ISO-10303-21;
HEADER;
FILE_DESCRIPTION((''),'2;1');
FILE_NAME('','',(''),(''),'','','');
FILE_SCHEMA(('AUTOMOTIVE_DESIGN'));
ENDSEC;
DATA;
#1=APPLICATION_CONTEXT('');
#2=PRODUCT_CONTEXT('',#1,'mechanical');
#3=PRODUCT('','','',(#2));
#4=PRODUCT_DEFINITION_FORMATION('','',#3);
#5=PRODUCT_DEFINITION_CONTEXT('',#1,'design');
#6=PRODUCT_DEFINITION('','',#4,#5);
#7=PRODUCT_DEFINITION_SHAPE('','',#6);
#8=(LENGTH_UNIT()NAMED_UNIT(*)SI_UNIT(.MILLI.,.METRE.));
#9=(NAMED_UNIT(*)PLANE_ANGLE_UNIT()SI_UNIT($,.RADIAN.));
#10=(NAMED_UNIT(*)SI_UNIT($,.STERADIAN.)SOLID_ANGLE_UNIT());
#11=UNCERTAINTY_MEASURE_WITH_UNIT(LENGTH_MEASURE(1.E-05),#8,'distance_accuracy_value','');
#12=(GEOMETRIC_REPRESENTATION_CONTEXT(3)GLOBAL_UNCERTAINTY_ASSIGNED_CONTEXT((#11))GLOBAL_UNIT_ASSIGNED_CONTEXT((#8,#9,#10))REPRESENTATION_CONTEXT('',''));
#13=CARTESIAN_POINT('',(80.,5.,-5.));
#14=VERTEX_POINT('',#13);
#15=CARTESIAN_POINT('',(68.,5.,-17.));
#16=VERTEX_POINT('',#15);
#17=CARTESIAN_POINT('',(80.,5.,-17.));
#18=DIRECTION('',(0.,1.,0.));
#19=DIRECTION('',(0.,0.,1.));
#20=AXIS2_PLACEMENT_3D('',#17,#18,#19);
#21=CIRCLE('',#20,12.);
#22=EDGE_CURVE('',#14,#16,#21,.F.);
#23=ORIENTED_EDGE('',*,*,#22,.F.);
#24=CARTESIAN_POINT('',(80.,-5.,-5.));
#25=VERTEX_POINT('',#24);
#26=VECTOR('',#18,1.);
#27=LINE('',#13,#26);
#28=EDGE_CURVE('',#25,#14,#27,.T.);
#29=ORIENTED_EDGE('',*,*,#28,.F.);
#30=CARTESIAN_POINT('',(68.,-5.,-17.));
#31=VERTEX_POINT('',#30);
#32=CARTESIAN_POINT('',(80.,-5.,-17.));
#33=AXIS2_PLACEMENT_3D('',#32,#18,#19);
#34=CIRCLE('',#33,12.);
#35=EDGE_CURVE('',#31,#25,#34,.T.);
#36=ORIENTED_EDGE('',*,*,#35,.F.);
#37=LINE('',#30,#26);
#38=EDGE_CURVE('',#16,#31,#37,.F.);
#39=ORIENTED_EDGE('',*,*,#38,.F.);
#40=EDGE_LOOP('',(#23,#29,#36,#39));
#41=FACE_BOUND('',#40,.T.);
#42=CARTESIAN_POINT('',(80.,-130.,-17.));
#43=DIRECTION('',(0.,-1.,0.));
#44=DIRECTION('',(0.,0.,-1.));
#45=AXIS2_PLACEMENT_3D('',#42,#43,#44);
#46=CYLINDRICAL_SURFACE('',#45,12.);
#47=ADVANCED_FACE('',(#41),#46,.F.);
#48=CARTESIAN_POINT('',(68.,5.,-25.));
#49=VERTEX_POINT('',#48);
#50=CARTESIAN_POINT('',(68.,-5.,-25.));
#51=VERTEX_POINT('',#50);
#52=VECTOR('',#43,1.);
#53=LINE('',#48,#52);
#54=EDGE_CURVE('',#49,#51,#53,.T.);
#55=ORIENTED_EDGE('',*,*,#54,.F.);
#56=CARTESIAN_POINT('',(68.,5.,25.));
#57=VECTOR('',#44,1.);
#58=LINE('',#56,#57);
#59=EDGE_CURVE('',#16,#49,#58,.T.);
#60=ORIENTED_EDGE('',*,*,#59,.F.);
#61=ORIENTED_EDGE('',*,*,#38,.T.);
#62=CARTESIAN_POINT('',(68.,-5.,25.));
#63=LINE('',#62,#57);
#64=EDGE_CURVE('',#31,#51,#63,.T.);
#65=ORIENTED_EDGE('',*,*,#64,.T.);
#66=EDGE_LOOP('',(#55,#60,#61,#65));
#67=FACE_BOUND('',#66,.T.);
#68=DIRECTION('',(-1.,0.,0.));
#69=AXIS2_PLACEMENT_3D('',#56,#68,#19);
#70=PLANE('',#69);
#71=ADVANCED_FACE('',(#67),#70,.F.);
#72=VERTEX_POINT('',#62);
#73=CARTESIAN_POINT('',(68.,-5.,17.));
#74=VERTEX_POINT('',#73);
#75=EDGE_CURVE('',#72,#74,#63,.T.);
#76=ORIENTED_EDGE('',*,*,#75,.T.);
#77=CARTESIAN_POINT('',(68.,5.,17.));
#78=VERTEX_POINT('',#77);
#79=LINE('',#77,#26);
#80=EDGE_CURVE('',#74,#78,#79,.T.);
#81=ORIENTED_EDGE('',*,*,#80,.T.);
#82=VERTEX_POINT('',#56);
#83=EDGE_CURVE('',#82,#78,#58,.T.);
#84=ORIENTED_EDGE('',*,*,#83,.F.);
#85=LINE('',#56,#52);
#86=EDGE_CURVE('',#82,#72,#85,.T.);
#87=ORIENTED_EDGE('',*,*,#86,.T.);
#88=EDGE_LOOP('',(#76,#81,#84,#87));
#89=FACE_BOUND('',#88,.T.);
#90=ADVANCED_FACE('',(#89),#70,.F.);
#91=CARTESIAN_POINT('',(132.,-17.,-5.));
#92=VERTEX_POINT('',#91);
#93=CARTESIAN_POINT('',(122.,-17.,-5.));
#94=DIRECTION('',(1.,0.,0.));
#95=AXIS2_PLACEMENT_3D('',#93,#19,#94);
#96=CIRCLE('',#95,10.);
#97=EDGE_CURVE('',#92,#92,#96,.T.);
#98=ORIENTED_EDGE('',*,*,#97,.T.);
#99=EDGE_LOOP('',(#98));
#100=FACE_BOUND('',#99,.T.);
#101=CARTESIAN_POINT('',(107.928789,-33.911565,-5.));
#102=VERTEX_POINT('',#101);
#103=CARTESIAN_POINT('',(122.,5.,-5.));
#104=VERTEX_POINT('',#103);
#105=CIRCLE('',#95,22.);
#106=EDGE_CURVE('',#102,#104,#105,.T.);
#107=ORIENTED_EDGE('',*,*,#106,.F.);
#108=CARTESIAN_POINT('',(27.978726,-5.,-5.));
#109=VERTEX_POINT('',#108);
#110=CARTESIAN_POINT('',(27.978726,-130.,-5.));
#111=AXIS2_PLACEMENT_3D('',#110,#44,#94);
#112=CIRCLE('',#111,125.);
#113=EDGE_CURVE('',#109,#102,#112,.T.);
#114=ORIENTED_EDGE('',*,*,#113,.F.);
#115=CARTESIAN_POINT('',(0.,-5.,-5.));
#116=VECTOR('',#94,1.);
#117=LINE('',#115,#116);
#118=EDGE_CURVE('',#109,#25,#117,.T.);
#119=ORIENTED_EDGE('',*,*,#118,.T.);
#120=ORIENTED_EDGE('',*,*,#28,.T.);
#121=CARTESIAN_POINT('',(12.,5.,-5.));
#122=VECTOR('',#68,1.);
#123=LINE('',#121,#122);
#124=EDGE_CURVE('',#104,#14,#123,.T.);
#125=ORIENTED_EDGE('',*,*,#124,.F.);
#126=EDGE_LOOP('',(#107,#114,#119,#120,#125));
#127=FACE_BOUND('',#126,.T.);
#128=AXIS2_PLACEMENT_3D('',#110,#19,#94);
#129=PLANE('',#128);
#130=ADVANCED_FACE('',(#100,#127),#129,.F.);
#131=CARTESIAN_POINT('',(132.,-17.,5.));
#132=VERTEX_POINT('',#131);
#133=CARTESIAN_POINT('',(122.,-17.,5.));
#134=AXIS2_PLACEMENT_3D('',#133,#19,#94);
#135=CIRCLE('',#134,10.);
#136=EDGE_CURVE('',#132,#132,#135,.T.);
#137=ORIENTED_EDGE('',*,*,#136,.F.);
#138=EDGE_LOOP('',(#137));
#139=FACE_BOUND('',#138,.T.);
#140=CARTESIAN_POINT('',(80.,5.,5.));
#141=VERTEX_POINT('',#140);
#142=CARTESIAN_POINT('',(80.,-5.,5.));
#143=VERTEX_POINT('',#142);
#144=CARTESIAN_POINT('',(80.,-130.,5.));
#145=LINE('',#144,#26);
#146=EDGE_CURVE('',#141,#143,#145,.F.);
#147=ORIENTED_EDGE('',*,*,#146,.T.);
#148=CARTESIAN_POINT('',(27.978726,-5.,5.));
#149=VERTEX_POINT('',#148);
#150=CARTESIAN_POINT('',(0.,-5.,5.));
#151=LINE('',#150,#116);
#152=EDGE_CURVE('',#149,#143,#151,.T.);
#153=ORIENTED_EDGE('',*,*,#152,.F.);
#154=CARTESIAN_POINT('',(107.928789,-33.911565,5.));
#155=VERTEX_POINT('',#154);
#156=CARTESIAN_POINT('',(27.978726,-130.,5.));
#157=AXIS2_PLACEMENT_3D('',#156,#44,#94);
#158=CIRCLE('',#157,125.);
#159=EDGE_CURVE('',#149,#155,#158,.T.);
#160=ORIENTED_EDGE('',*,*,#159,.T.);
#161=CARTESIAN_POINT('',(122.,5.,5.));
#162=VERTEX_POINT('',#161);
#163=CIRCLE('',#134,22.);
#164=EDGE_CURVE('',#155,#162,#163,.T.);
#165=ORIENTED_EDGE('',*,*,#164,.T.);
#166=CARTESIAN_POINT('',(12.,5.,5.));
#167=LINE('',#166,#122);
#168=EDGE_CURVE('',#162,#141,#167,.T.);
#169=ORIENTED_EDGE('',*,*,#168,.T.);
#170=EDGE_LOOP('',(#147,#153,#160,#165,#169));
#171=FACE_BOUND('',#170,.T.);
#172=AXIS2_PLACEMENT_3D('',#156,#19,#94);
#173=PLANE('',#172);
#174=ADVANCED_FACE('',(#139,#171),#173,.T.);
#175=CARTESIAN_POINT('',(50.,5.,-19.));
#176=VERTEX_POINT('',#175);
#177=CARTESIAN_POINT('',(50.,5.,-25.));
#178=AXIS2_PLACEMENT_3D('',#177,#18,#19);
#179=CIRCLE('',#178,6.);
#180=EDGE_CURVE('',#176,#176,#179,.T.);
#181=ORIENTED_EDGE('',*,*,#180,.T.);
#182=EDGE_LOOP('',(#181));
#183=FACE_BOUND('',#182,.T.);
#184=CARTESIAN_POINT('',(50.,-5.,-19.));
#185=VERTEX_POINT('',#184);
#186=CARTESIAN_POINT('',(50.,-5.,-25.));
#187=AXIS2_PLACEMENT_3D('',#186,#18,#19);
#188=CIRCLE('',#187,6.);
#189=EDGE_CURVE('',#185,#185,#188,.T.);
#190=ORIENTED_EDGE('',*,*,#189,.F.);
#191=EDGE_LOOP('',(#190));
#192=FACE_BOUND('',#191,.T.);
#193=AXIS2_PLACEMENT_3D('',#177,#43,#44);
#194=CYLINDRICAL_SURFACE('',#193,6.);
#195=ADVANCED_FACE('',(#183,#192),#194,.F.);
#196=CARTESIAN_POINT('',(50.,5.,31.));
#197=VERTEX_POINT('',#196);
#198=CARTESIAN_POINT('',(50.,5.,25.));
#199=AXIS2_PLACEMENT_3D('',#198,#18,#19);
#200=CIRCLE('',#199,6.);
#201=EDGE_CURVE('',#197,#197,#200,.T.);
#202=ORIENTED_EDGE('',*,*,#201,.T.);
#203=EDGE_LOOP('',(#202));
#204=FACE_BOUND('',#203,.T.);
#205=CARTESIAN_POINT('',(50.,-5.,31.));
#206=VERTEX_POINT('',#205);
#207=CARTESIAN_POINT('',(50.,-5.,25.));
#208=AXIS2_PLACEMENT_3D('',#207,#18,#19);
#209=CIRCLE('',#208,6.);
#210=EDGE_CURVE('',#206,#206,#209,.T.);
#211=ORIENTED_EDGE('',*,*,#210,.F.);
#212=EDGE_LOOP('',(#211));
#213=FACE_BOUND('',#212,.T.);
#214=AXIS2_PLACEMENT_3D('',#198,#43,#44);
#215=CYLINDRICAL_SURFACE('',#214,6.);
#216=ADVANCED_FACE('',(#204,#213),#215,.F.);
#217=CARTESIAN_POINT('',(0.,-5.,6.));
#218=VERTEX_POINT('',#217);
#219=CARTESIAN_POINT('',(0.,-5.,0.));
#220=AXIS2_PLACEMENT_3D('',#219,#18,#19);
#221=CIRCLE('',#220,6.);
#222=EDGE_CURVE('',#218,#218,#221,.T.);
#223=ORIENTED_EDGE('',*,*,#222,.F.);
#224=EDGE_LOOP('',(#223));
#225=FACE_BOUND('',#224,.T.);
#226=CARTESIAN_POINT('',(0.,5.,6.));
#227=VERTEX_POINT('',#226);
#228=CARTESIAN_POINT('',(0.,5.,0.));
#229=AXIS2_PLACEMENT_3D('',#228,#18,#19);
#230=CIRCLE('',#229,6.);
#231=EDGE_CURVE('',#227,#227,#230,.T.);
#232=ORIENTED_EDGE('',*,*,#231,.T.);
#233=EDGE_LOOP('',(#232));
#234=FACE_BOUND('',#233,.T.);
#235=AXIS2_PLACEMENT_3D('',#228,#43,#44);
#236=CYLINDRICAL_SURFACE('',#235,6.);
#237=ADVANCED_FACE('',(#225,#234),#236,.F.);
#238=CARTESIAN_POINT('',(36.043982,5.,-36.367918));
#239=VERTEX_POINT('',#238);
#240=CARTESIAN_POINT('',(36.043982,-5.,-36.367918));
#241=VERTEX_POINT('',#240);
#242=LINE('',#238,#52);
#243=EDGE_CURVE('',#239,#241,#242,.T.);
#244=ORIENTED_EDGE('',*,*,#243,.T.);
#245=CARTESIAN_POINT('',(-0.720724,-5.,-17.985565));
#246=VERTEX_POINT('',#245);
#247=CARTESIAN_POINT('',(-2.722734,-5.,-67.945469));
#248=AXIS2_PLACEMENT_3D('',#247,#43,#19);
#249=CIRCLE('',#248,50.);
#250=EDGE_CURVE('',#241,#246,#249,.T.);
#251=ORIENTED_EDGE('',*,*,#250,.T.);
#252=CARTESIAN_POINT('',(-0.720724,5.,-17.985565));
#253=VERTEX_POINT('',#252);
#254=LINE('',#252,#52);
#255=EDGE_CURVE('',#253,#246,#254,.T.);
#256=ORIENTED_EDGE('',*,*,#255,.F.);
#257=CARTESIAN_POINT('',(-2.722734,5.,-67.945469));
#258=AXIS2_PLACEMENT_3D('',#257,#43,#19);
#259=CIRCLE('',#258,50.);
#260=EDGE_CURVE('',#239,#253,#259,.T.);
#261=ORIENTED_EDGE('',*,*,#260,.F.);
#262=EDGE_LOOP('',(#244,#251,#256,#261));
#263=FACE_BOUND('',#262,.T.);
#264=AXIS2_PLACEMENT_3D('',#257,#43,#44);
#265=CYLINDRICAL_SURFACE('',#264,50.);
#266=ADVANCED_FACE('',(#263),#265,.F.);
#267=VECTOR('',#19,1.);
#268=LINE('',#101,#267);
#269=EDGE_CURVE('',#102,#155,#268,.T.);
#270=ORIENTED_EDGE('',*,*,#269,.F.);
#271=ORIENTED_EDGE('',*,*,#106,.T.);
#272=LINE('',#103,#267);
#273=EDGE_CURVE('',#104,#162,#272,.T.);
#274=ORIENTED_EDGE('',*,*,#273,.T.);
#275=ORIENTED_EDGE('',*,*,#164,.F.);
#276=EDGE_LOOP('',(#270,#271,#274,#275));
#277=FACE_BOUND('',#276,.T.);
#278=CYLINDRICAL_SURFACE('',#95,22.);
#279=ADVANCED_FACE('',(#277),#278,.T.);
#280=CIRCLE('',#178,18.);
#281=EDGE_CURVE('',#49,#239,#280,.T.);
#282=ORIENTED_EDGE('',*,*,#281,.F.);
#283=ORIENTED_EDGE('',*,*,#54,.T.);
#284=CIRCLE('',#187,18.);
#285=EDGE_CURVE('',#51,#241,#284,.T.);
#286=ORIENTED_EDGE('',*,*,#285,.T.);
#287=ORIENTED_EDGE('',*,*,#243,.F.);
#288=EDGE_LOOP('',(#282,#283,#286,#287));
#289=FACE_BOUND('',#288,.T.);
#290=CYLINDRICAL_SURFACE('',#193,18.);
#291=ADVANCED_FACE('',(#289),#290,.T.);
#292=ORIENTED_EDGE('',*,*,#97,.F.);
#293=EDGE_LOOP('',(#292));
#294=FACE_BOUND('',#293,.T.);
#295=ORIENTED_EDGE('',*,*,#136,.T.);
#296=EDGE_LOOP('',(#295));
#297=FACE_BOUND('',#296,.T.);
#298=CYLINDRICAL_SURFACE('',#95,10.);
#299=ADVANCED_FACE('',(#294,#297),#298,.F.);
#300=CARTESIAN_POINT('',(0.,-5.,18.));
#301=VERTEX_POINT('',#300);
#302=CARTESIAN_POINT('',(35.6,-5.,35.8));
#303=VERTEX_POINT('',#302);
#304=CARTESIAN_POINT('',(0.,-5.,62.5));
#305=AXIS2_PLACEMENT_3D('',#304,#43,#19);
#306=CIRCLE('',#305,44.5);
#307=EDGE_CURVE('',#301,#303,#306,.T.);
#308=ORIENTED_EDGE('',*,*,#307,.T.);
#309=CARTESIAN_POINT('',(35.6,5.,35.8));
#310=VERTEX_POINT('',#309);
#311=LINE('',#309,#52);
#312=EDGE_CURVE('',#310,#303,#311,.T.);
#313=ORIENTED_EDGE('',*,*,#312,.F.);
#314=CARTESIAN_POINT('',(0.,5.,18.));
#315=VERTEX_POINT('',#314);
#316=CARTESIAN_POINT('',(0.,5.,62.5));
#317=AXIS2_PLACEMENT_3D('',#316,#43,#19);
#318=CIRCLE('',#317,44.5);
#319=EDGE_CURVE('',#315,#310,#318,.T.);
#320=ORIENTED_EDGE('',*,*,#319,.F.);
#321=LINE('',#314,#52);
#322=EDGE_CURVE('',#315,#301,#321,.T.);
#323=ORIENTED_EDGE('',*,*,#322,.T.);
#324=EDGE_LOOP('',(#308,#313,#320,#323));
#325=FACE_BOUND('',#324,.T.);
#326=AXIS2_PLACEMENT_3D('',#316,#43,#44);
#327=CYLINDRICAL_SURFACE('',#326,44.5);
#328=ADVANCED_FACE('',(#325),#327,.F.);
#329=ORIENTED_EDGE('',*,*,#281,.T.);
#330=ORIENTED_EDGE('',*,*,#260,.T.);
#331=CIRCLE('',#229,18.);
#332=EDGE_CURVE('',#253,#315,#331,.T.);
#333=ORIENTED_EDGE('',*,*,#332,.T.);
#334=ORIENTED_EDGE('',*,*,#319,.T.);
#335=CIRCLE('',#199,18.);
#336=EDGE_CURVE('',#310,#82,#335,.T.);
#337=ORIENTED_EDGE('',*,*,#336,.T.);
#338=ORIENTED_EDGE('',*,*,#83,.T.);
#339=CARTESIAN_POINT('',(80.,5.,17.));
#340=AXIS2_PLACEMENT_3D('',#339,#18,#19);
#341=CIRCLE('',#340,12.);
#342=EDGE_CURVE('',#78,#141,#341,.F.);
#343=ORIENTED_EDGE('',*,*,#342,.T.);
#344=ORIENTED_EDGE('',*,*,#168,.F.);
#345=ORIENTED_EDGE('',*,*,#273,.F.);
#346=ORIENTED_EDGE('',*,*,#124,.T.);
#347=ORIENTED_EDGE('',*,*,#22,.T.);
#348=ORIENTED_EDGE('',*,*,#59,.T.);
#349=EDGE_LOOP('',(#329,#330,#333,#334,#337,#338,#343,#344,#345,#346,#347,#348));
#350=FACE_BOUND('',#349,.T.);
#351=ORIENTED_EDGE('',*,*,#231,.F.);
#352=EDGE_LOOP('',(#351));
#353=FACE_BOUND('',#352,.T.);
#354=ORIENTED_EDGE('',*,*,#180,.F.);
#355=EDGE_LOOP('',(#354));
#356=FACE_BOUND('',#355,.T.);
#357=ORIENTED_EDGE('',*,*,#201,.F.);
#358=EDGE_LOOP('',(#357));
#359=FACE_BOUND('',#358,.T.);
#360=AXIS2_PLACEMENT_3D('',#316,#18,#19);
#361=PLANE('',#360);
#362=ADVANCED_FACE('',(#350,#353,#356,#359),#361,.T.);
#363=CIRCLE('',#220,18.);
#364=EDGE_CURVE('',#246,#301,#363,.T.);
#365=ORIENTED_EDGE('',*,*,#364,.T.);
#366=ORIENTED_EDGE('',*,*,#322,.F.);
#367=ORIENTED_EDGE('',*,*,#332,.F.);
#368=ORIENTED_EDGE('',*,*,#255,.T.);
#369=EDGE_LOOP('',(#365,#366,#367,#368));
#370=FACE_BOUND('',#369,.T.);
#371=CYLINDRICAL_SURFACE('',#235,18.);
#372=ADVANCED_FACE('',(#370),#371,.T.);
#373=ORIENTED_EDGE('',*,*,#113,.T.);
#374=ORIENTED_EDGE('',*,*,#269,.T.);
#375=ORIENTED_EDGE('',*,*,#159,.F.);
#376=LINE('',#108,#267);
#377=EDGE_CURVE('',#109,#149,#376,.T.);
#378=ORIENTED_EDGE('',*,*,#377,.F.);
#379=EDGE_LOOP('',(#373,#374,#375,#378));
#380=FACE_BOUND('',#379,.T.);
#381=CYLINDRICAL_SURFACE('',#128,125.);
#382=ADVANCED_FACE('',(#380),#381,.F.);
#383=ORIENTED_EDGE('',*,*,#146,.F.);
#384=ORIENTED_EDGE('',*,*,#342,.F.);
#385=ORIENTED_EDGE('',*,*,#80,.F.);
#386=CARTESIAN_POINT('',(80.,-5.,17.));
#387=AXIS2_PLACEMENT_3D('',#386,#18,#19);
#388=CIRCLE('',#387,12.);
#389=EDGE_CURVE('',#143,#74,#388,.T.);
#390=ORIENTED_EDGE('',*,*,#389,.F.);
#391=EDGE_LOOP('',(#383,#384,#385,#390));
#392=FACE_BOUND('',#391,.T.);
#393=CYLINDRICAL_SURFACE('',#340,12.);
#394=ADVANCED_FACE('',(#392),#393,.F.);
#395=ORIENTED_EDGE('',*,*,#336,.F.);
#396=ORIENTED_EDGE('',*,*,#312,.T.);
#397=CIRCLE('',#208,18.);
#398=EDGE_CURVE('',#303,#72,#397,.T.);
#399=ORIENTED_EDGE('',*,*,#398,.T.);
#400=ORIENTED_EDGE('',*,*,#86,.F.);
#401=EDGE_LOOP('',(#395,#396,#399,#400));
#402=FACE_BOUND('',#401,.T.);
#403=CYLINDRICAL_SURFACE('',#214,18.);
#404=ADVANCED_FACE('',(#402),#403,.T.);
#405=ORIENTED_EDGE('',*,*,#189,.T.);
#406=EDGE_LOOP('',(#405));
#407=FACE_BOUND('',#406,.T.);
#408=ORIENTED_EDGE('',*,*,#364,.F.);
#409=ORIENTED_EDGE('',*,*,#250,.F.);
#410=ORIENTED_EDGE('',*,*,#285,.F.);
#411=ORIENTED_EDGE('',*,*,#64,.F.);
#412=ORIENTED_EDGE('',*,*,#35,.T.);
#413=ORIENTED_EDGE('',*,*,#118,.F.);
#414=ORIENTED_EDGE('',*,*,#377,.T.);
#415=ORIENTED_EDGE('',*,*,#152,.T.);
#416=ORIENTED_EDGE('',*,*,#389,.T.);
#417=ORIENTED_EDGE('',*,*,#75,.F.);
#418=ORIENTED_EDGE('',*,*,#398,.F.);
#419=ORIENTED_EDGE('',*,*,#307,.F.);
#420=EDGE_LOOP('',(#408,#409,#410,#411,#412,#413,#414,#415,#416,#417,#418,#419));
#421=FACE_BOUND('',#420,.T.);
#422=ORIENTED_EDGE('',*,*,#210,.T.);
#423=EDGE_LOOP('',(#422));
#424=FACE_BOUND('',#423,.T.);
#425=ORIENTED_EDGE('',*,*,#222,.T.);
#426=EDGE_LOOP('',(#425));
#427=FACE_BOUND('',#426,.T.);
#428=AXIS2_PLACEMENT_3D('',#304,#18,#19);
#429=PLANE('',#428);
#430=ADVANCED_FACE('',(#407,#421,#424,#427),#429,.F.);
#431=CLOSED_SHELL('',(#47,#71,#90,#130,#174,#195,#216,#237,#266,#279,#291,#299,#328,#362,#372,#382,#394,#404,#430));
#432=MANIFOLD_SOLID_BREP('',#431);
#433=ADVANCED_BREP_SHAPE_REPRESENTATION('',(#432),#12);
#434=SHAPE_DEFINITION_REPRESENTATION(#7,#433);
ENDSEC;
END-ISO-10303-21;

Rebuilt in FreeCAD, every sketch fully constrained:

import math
import FreeCAD as App
import Part
import Sketcher

V = App.Vector


def edges_at(feature, points):
    """Names of the edges that pass closest to the given points."""
    edges = feature.Shape.Edges
    near = lambda p: min(range(len(edges)), key=lambda i: edges[i].distToShape(Part.Vertex(*p))[0])
    return sorted({f"Edge{near(p) + 1}" for p in points})

doc = App.newDocument("Part")
body = doc.addObject("PartDesign::Body", "Body")

sketch1 = body.newObject("Sketcher::SketchObject", "Sketch")
sketch1.AttachmentSupport = (doc.getObject("XZ_Plane"), [""])
sketch1.MapMode = "FlatFace"
sketch1.addGeometry([
    Part.LineSegment(V(68, 25, 0), V(68, -25, 0)),
    Part.ArcOfCircle(Part.Circle(V(50, -25, 0), V(0, 0, 1), 18), math.radians(-140.835354), math.radians(0)),
    Part.ArcOfCircle(Part.Circle(V(-2.722734, -67.945469, 0), V(0, 0, 1), 50), math.radians(39.164646), math.radians(87.705251)),
    Part.ArcOfCircle(Part.Circle(V(0, 0, 0), V(0, 0, 1), 18), math.radians(90), math.radians(267.705251)),
    Part.ArcOfCircle(Part.Circle(V(0, 62.5, 0), V(0, 0, 1), 44.5), math.radians(-90), math.radians(-36.869898)),
    Part.ArcOfCircle(Part.Circle(V(50, 25, 0), V(0, 0, 1), 18), math.radians(0), math.radians(143.130102)),
    Part.Circle(V(50, 25, 0), V(0, 0, 1), 6),
    Part.Circle(V(0, 0, 0), V(0, 0, 1), 6),
    Part.Circle(V(50, -25, 0), V(0, 0, 1), 6),
], False)
sketch1.addConstraint([
    Sketcher.Constraint("Tangent", 0, 2, 1, 2),
    Sketcher.Constraint("Tangent", 1, 1, 2, 1),
    Sketcher.Constraint("Tangent", 2, 2, 3, 2),
    Sketcher.Constraint("Tangent", 3, 1, 4, 1),
    Sketcher.Constraint("Tangent", 4, 2, 5, 2),
    Sketcher.Constraint("Tangent", 5, 1, 0, 1),
    Sketcher.Constraint("Vertical", 0),
    Sketcher.Constraint("Coincident", 3, 3, -1, 1),
    Sketcher.Constraint("Coincident", 7, 3, -1, 1),
    Sketcher.Constraint("Coincident", 6, 3, 5, 3),
    Sketcher.Constraint("Coincident", 8, 3, 1, 3),
    Sketcher.Constraint("Equal", 1, 3),
    Sketcher.Constraint("Equal", 3, 5),
    Sketcher.Constraint("Equal", 6, 7),
    Sketcher.Constraint("Equal", 7, 8),
    Sketcher.Constraint("PointOnObject", 4, 3, -2),
    Sketcher.Constraint("Diameter", 6, 12.0),
    Sketcher.Constraint("Radius", 1, 18.0),
    Sketcher.Constraint("Radius", 2, 50.0),
    Sketcher.Constraint("Radius", 4, 44.5),
    Sketcher.Constraint("DistanceY", 0, 2, 0, 1, 50.0),
    Sketcher.Constraint("DistanceX", -1, 1, 1, 3, 50.0),
])
pad1 = body.newObject("PartDesign::Pad", "Pad")
pad1.Profile = sketch1
pad1.Length = 10
pad1.Midplane = True

sketch2 = body.newObject("Sketcher::SketchObject", "Sketch001")
sketch2.AttachmentSupport = (doc.getObject("XY_Plane"), [""])
sketch2.MapMode = "FlatFace"
sketch2.addGeometry([
    Part.LineSegment(V(122, 5, 0), V(12, 5, 0)),
    Part.LineSegment(V(12, 5, 0), V(12, -5, 0)),
    Part.LineSegment(V(12, -5, 0), V(27.978726, -5, 0)),
    Part.ArcOfCircle(Part.Circle(V(27.978726, -130, 0), V(0, 0, 1), 125), math.radians(50.237963), math.radians(90)),
    Part.ArcOfCircle(Part.Circle(V(122, -17, 0), V(0, 0, 1), 22), math.radians(-129.762037), math.radians(90)),
    Part.Circle(V(122, -17, 0), V(0, 0, 1), 10),
], False)
sketch2.addConstraint([
    Sketcher.Constraint("Coincident", 0, 2, 1, 1),
    Sketcher.Constraint("Coincident", 1, 2, 2, 1),
    Sketcher.Constraint("Tangent", 2, 2, 3, 2),
    Sketcher.Constraint("Tangent", 3, 1, 4, 1),
    Sketcher.Constraint("Tangent", 4, 2, 0, 1),
    Sketcher.Constraint("Horizontal", 0),
    Sketcher.Constraint("Vertical", 1),
    Sketcher.Constraint("Horizontal", 2),
    Sketcher.Constraint("Coincident", 5, 3, 4, 3),
    Sketcher.Constraint("Diameter", 5, 20.0),
    Sketcher.Constraint("Radius", 3, 125.0),
    Sketcher.Constraint("Radius", 4, 22.0),
    Sketcher.Constraint("DistanceX", 0, 2, 0, 1, 110.0),
    Sketcher.Constraint("DistanceY", 1, 2, 1, 1, 10.0),
    Sketcher.Constraint("DistanceY", 3, 3, -1, 1, 130.0),
    Sketcher.Constraint("DistanceX", -1, 1, 4, 3, 122.0),
])
pad2 = body.newObject("PartDesign::Pad", "Pad001")
pad2.Profile = sketch2
pad2.Length = 10
pad2.Midplane = True
doc.recompute()

fillet = body.newObject("PartDesign::Fillet", "Fillet")
fillet.Base = (pad2, edges_at(pad2, [(68, 0, 5), (68, 0, -5)]))
fillet.Radius = 12

doc.recompute()
